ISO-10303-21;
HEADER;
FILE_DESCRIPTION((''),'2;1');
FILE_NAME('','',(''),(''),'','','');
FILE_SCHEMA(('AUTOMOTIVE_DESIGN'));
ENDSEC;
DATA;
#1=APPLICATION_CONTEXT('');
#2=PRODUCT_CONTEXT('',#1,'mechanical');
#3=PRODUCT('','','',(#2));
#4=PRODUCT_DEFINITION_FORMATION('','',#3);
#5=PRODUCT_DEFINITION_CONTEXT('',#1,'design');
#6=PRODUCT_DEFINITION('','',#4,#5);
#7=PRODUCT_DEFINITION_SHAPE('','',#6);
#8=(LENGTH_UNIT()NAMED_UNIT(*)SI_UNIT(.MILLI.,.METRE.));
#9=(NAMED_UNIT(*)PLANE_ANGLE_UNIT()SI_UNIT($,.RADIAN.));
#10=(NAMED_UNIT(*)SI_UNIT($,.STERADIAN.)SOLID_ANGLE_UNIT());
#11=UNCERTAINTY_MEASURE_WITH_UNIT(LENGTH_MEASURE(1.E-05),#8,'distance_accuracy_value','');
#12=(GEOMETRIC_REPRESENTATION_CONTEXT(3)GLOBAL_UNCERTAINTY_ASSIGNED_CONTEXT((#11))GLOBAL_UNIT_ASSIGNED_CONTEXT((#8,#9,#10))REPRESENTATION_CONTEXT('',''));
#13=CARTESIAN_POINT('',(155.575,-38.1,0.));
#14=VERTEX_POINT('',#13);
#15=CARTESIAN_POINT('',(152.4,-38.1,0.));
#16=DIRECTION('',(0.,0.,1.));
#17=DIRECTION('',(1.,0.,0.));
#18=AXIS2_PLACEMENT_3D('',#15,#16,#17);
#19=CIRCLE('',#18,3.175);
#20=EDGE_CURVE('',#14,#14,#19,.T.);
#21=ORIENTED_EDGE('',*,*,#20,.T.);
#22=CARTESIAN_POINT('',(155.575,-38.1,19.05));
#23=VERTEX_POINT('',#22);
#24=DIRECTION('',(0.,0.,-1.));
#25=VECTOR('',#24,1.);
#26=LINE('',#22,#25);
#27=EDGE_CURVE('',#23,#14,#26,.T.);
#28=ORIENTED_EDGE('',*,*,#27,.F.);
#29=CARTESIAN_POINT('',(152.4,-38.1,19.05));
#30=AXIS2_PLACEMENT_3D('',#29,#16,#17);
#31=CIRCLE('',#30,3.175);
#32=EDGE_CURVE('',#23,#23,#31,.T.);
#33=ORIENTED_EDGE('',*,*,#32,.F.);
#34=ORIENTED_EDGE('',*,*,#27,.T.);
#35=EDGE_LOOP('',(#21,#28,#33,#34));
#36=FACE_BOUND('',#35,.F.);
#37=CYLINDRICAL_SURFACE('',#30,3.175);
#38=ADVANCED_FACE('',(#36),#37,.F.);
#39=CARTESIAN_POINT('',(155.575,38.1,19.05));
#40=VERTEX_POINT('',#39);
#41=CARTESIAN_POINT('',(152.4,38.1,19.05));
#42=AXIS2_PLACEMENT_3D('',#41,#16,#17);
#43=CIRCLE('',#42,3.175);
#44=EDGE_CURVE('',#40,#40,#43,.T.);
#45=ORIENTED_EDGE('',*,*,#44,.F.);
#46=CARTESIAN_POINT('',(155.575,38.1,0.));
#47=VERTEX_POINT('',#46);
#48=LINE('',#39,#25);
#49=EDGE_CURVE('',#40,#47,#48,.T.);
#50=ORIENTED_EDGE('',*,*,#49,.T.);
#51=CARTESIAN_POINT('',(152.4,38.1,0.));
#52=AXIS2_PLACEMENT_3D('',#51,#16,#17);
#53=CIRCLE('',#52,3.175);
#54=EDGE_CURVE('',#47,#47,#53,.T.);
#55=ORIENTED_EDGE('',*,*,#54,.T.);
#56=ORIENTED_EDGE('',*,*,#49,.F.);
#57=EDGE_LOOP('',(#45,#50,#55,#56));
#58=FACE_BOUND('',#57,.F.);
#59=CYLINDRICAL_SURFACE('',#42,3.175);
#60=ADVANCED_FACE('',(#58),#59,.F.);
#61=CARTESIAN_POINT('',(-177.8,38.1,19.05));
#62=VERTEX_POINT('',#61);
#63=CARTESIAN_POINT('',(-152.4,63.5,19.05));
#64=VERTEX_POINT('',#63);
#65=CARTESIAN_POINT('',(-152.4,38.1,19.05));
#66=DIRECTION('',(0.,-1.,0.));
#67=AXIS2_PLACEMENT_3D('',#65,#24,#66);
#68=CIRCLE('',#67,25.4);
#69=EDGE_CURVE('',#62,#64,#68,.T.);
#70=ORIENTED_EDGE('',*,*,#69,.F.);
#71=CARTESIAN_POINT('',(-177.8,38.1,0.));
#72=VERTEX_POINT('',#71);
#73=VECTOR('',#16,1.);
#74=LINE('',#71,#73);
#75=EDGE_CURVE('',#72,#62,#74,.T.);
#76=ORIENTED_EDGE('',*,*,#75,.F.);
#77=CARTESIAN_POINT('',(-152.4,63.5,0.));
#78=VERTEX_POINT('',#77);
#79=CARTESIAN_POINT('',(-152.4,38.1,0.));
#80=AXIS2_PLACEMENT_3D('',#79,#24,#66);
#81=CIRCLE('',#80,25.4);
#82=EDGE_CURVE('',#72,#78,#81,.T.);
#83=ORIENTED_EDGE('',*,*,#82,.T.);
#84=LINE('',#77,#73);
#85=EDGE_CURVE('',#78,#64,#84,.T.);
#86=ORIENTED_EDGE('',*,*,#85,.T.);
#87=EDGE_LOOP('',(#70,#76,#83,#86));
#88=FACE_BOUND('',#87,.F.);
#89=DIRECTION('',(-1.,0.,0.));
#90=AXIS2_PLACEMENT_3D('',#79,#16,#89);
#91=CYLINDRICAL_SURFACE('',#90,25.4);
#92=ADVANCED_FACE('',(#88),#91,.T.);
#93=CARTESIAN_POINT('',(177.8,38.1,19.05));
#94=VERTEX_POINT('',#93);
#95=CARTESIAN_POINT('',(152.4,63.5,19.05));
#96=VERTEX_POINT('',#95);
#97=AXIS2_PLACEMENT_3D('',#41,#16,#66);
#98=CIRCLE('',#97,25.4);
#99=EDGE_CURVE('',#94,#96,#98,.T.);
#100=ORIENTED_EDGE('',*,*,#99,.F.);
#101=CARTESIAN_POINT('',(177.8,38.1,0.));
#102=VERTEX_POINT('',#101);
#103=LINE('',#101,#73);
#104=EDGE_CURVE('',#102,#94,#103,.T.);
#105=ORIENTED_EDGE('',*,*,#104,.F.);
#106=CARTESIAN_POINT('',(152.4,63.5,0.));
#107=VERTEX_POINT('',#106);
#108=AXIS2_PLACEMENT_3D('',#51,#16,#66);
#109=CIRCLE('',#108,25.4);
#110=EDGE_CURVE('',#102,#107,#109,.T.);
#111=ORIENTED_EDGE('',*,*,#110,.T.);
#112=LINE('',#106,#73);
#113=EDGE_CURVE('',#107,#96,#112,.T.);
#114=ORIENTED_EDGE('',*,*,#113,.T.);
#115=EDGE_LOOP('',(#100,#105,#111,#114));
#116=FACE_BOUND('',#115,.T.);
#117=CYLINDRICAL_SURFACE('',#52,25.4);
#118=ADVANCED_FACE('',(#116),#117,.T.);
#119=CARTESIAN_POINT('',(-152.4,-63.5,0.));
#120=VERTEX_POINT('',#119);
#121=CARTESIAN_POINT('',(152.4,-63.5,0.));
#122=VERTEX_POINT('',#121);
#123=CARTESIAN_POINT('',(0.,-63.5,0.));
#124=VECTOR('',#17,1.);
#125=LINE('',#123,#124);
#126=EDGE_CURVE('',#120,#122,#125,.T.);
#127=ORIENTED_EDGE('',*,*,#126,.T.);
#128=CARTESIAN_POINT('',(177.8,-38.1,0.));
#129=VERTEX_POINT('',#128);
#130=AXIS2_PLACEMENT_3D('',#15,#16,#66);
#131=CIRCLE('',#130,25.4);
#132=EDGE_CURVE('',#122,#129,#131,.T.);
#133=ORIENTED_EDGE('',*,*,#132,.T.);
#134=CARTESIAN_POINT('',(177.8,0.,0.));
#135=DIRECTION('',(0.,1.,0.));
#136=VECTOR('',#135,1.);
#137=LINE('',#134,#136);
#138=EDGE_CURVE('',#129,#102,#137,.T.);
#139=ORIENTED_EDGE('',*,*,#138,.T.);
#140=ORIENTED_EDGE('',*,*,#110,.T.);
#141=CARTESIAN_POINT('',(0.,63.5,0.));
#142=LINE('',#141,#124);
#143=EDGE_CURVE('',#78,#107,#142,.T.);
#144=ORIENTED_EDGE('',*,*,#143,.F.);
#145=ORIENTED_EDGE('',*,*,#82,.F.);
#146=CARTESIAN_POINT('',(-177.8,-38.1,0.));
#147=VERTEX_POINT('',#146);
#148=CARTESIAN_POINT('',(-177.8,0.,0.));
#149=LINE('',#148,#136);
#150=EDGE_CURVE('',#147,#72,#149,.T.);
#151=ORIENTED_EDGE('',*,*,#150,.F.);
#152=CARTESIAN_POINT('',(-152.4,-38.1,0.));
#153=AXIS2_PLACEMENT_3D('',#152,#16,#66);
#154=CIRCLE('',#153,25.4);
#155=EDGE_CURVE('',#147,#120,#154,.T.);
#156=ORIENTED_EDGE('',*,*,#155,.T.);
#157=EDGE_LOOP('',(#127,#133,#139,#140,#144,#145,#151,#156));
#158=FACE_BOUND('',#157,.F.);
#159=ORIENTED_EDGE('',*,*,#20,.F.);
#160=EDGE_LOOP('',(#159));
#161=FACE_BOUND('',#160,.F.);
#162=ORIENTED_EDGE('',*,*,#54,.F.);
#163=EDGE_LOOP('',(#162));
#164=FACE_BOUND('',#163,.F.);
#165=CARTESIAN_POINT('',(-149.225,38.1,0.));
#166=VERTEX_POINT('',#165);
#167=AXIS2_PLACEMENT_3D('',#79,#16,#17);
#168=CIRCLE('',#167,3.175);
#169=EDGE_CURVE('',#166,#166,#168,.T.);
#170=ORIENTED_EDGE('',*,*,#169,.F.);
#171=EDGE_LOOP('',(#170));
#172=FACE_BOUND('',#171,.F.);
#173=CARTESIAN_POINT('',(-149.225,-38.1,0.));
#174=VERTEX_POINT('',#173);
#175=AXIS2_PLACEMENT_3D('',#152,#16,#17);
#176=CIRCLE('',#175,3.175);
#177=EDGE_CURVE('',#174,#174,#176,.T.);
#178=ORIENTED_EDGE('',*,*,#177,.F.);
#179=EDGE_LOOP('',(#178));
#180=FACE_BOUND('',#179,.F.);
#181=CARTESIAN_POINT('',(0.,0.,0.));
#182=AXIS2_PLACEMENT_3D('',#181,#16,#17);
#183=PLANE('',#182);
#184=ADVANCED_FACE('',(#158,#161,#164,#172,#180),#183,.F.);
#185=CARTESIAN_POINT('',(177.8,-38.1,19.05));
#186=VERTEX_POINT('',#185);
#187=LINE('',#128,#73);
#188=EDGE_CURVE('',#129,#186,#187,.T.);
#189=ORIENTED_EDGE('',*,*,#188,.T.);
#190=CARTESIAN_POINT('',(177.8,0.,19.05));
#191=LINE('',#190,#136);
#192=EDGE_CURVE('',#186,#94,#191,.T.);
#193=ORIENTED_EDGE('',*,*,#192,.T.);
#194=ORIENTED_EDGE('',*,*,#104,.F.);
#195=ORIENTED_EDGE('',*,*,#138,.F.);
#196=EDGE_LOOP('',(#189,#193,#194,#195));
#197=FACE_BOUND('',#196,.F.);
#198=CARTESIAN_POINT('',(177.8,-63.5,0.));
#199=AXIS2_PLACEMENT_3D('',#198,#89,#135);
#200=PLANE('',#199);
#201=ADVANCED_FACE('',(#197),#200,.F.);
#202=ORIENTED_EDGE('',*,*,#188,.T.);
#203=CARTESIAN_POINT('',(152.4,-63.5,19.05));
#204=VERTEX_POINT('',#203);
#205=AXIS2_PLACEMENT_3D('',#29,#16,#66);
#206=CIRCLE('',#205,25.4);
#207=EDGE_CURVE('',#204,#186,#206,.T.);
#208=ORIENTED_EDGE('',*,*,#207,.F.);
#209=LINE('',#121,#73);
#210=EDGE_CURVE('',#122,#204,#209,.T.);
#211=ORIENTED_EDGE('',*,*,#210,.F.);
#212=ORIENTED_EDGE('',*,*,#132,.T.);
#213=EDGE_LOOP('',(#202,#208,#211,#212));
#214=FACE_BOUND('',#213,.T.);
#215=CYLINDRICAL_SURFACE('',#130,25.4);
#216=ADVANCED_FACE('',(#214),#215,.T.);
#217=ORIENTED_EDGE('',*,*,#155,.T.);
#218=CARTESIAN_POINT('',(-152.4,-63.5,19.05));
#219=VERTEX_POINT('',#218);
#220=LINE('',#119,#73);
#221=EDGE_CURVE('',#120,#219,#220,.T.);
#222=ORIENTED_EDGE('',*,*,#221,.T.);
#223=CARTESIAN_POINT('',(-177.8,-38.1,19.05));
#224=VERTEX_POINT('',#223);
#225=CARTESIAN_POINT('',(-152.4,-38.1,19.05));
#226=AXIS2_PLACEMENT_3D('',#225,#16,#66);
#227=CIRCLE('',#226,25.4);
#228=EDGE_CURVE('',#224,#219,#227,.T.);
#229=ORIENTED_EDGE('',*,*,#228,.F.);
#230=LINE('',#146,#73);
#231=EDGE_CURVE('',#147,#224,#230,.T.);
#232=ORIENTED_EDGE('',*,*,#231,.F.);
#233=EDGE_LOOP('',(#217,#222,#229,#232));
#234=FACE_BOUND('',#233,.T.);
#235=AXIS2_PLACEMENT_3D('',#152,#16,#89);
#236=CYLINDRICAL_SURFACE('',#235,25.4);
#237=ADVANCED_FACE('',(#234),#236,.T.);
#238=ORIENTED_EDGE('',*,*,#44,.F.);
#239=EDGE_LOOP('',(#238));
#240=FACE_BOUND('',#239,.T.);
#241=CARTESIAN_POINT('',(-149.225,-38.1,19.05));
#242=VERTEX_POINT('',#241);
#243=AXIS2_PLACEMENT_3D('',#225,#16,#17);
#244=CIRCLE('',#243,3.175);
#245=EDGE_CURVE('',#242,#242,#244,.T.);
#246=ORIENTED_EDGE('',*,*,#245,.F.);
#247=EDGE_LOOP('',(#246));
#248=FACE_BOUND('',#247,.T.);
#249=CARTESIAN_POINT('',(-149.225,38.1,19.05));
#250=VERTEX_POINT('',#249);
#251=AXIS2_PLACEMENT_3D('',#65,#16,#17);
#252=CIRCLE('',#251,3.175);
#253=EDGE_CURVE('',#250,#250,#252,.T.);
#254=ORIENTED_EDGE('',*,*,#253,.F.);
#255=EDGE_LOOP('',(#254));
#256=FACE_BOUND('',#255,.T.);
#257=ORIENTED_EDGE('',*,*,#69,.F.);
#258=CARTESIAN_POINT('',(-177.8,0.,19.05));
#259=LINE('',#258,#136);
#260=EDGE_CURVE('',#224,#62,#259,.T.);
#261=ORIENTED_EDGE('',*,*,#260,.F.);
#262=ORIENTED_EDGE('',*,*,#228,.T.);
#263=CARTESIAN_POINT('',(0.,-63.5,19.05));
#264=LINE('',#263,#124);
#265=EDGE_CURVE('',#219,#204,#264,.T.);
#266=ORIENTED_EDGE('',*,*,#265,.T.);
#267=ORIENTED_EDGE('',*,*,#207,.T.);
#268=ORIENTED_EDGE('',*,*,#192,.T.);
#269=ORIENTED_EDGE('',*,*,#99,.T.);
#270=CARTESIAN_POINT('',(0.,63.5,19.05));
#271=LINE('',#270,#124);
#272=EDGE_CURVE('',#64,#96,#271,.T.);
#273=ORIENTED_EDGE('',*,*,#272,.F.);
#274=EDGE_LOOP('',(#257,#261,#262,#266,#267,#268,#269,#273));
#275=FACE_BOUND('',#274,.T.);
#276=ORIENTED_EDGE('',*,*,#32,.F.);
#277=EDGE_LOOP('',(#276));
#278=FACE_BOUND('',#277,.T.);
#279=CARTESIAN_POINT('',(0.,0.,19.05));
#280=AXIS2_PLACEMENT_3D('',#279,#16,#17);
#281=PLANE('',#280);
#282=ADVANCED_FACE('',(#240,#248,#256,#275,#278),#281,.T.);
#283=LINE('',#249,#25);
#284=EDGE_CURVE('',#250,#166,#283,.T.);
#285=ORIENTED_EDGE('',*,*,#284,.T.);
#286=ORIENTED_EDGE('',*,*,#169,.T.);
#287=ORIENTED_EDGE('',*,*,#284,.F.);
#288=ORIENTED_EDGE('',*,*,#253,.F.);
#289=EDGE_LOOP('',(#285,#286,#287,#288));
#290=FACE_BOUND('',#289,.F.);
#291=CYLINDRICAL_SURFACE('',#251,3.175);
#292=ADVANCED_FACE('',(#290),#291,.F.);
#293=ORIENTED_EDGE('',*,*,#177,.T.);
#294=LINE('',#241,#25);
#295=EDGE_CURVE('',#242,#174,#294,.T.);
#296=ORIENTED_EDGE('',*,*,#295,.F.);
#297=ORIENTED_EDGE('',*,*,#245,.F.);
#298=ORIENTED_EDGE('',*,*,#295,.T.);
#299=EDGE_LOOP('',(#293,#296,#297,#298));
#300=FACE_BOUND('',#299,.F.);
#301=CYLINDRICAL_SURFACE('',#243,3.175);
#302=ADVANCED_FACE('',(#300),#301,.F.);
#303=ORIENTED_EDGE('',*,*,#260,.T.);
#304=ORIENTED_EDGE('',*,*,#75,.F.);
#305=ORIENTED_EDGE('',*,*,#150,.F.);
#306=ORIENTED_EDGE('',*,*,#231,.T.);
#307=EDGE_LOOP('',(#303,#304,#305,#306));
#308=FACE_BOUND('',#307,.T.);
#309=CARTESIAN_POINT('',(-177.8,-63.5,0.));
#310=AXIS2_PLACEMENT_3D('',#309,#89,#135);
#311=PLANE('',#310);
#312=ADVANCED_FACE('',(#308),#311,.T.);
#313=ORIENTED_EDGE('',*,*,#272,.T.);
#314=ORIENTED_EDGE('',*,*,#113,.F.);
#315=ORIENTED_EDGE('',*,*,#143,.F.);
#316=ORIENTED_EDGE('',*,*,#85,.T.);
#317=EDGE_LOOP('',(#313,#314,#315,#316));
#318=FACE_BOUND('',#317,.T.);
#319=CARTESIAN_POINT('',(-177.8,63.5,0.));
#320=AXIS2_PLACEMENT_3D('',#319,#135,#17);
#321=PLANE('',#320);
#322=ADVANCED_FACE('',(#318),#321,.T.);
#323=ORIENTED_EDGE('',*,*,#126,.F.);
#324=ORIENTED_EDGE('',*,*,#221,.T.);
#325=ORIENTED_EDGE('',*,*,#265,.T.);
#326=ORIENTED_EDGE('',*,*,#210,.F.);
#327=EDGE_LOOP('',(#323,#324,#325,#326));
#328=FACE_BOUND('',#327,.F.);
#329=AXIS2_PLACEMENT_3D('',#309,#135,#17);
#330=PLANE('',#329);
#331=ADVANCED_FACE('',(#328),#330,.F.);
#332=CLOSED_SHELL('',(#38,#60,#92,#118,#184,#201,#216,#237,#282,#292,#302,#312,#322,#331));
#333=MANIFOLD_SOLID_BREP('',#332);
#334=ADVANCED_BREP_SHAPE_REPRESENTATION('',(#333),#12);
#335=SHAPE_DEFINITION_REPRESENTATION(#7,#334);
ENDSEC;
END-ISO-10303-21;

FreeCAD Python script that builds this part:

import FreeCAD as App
import Part
import Sketcher
Q = App.Units.Quantity


def edges_at(feature, points):
    """Names of the edges that pass closest to the given points."""
    edges = feature.Shape.Edges
    near = lambda p: min(range(len(edges)), key=lambda i: edges[i].distToShape(Part.Vertex(*p))[0])
    return sorted({f"Edge{near(p) + 1}" for p in points})


def add_polygon(sketch, points):
    """Adds a closed chain of lines whose ends are joined by coincident constraints."""
    first, n = sketch.GeometryCount, len(points)
    for a, b in zip(points, points[1:] + points[:1]):
        sketch.addGeometry(Part.LineSegment(App.Vector(*a, 0), App.Vector(*b, 0)), False)
    for i in range(n):
        sketch.addConstraint(Sketcher.Constraint("Coincident", first + i, 2, first + (i + 1) % n, 1))

doc = App.newDocument("Part")
body = doc.addObject("PartDesign::Body", "Body")

# Sketch on XY plane
sketch1 = body.newObject("Sketcher::SketchObject", "Sketch")
sketch1.AttachmentSupport = (doc.getObject("XY_Plane"), [""])
sketch1.MapMode = "FlatFace"
add_polygon(sketch1, [(-177.8, 63.5), (-177.8, -63.5), (177.8, -63.5), (177.8, 63.5)])  # lines 0-3
sketch1.addConstraint([
    Sketcher.Constraint("Vertical", 0),
    Sketcher.Constraint("Horizontal", 1),
    Sketcher.Constraint("Vertical", 2),
    Sketcher.Constraint("Horizontal", 3),
    Sketcher.Constraint("Symmetric", 0, 2, 2, 2, -1, 1),
    Sketcher.Constraint("DistanceX", 1, 1, 1, 2, Q("14 in")),
    Sketcher.Constraint("DistanceY", 0, 2, 0, 1, Q("5 in")),
])
pad1 = body.newObject("PartDesign::Pad", "Pad")
pad1.Profile = sketch1
pad1.Length = Q("0.75 in")
doc.recompute()

fillet = body.newObject("PartDesign::Fillet", "Fillet")
fillet.Base = (pad1, edges_at(pad1, [
    (-177.8, 63.5, 9.525),
    (-177.8, -63.5, 9.525),
    (177.8, -63.5, 9.525),
    (177.8, 63.5, 9.525),
]))
fillet.Radius = Q("1 in")

# Sketch on XY plane
sketch2 = body.newObject("Sketcher::SketchObject", "Sketch001")
sketch2.AttachmentSupport = (doc.getObject("XY_Plane"), [""])
sketch2.MapMode = "FlatFace"
sketch2.AttachmentOffset = App.Placement(App.Vector(0, 0, 0.75 * 25.4), App.Rotation())
sketch2.addGeometry([
    Part.Circle(App.Vector(-152.4, 38.1, 0), App.Vector(0, 0, 1), 3.175),
    Part.Circle(App.Vector(-152.4, -38.1, 0), App.Vector(0, 0, 1), 3.175),
    Part.Circle(App.Vector(152.4, 38.1, 0), App.Vector(0, 0, 1), 3.175),
    Part.Circle(App.Vector(152.4, -38.1, 0), App.Vector(0, 0, 1), 3.175),
], False)
sketch2.addConstraint([
    Sketcher.Constraint("Equal", 0, 1),
    Sketcher.Constraint("Equal", 1, 2),
    Sketcher.Constraint("Equal", 2, 3),
    Sketcher.Constraint("Symmetric", 1, 3, 2, 3, -1, 1),
    Sketcher.Constraint("Symmetric", 0, 3, 3, 3, -1, 1),
    Sketcher.Constraint("Symmetric", 0, 3, 2, 3, -2),
    Sketcher.Constraint("Diameter", 0, Q("0.25 in")),
    Sketcher.Constraint("DistanceX", 0, 3, -1, 1, Q("6 in")),
    Sketcher.Constraint("DistanceY", 1, 3, 0, 3, Q("3 in")),
])
pocket1 = body.newObject("PartDesign::Pocket", "Pocket")
pocket1.Profile = sketch2
pocket1.Type = "ThroughAll"

doc.recompute()
